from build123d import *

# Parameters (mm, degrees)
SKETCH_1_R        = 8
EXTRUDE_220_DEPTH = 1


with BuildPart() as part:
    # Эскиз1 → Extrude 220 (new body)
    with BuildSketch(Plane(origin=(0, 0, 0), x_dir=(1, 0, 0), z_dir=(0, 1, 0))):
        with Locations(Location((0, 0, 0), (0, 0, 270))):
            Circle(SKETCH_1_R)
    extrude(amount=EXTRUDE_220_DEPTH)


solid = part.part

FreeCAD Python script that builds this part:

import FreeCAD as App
import Part
import Sketcher

doc = App.newDocument("Part")
body = doc.addObject("PartDesign::Body", "Body")

sketch1 = doc.addObject("Sketcher::SketchObject", "Sketch")
body.addObject(sketch1)
sketch1.AttachmentSupport = (doc.XZ_Plane, [""])
sketch1.MapMode = "FlatFace"
sketch1.addGeometry(Part.Circle(App.Vector(0, 0, 0), App.Vector(0, 0, 1), 8), False)
sketch1.addConstraint([
    Sketcher.Constraint("Coincident", 0, 3, -1, 1),
    Sketcher.Constraint("Diameter", 0, 16.0),
])
pad1 = doc.addObject("PartDesign::Pad", "Pad")
body.addObject(pad1)
pad1.Profile = sketch1
pad1.Length = 1
pad1.Reversed = True

doc.recompute()
